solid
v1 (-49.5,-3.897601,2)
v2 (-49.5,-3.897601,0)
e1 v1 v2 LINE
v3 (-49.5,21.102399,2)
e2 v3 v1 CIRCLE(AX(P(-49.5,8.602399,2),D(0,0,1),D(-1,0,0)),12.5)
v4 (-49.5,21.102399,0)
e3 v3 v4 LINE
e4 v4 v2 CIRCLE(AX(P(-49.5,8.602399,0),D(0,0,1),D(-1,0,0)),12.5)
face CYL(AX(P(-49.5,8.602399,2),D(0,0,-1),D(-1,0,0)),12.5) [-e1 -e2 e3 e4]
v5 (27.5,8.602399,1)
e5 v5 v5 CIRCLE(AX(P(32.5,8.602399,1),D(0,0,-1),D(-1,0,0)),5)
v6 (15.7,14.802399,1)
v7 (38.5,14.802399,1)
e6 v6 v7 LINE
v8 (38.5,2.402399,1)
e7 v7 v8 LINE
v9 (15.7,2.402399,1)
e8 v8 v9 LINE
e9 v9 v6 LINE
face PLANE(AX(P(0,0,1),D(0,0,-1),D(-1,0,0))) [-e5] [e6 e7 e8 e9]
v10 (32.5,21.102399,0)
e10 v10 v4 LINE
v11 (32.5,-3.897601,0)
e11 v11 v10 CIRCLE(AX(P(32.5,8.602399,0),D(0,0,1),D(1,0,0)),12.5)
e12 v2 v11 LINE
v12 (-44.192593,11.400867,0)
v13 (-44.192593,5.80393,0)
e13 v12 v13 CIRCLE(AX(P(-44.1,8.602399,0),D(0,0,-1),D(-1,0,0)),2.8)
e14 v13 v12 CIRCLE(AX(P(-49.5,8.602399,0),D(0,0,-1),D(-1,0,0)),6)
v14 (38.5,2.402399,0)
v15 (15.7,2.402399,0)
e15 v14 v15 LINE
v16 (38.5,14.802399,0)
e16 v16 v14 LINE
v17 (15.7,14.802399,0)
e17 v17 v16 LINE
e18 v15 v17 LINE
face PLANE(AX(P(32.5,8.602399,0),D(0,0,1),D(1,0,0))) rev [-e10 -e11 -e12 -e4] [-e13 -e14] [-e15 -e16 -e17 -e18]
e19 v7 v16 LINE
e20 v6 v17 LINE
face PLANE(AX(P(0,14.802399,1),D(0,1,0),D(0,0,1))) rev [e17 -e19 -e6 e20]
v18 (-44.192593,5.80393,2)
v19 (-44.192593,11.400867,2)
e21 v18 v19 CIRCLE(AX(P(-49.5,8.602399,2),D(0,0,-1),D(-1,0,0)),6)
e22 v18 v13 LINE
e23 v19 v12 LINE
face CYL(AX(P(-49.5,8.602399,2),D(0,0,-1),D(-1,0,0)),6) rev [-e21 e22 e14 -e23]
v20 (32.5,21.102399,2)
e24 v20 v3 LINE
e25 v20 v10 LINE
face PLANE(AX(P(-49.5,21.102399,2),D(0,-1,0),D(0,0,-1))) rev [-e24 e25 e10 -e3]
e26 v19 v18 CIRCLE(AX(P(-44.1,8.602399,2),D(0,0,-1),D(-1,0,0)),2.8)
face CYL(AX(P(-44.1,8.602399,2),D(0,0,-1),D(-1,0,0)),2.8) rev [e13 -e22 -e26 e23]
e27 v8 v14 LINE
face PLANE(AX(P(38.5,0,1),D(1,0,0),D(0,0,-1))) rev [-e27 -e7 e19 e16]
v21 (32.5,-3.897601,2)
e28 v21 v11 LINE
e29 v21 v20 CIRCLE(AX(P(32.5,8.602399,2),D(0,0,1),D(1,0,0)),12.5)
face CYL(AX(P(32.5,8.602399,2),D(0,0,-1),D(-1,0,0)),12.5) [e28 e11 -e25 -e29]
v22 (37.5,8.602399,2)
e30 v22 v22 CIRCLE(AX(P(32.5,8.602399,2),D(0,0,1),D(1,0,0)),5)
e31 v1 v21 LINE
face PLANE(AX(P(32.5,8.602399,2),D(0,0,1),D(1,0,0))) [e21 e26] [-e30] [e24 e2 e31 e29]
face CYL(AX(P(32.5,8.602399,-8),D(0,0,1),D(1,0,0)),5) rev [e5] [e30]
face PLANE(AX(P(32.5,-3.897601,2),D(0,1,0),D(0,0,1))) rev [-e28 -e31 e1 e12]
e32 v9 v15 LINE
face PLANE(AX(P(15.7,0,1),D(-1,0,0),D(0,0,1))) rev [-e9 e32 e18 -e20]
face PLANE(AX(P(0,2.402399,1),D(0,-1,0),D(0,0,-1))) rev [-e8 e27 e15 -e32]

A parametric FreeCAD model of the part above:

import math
import FreeCAD as App
import Part
import Sketcher

V = App.Vector

doc = App.newDocument("Part")
body = doc.addObject("PartDesign::Body", "Body")

sketch1 = doc.addObject("Sketcher::SketchObject", "Sketch")
body.addObject(sketch1)
sketch1.AttachmentSupport = (doc.XY_Plane, [""])
sketch1.MapMode = "FlatFace"
sketch1.addGeometry([
    Part.LineSegment(V(-49.5, -3.897601, 0), V(32.5, -3.897601, 0)),
    Part.ArcOfCircle(Part.Circle(V(32.5, 8.602399, 0), V(0, 0, 1), 12.5), math.radians(-90), math.radians(90)),
    Part.LineSegment(V(32.5, 21.102399, 0), V(-49.5, 21.102399, 0)),
    Part.ArcOfCircle(Part.Circle(V(-49.5, 8.602399, 0), V(0, 0, 1), 12.5), math.radians(90), math.radians(270)),
    Part.Circle(V(32.5, 8.602399, 0), V(0, 0, 1), 0.5),
    Part.Circle(V(-49.5, 8.602399, 0), V(0, 0, 1), 0.5),
], False)
sketch1.addConstraint([
    Sketcher.Constraint("Tangent", 0, 2, 1, 1),
    Sketcher.Constraint("Tangent", 1, 2, 2, 1),
    Sketcher.Constraint("Tangent", 2, 2, 3, 1),
    Sketcher.Constraint("Tangent", 3, 2, 0, 1),
    Sketcher.Constraint("Horizontal", 0),
    Sketcher.Constraint("Horizontal", 2),
    Sketcher.Constraint("Coincident", 4, 3, 1, 3),
    Sketcher.Constraint("Coincident", 5, 3, 3, 3),
    Sketcher.Constraint("Equal", 4, 5),
    Sketcher.Constraint("Diameter", 4, 1.0),
    Sketcher.Constraint("Radius", 1, 12.5),
    Sketcher.Constraint("DistanceX", 0, 1, 0, 2, 82.0),
    Sketcher.Constraint("DistanceX", -1, 1, 1, 3, 32.5),
    Sketcher.Constraint("DistanceY", -1, 1, 1, 3, 8.602399),
])
pad1 = doc.addObject("PartDesign::Pad", "Pad")
body.addObject(pad1)
pad1.Profile = sketch1
pad1.Length = 2

sketch2 = doc.addObject("Sketcher::SketchObject", "Sketch001")
body.addObject(sketch2)
sketch2.AttachmentSupport = (doc.XY_Plane, [""])
sketch2.MapMode = "FlatFace"
sketch2.addGeometry([
    Part.ArcOfCircle(Part.Circle(V(-44.1, 8.602399, 0), V(0, 0, 1), 2.8), math.radians(-91.895047), math.radians(91.895047)),
    Part.ArcOfCircle(Part.Circle(V(-49.5, 8.602399, 0), V(0, 0, 1), 6), math.radians(27.801606), math.radians(332.198394)),
], False)
sketch2.addConstraint([
    Sketcher.Constraint("Coincident", 0, 1, 1, 2),
    Sketcher.Constraint("Coincident", 1, 1, 0, 2),
    Sketcher.Constraint("Horizontal", 0, 3, 1, 3),
    Sketcher.Constraint("Radius", 1, 6.0),
    Sketcher.Constraint("Radius", 0, 2.8),
    Sketcher.Constraint("DistanceX", 0, 3, -1, 1, 44.1),
    Sketcher.Constraint("DistanceX", 1, 3, -1, 1, 49.5),
    Sketcher.Constraint("DistanceY", -1, 1, 0, 3, 8.602399),
])
pocket1 = doc.addObject("PartDesign::Pocket", "Pocket")
body.addObject(pocket1)
pocket1.Profile = sketch2
pocket1.Length = 2
pocket1.Reversed = True

sketch3 = doc.addObject("Sketcher::SketchObject", "Sketch002")
body.addObject(sketch3)
sketch3.AttachmentSupport = (doc.XY_Plane, [""])
sketch3.MapMode = "FlatFace"
sketch3.addGeometry([
    Part.LineSegment(V(15.7, 14.802399, 0), V(38.5, 14.802399, 0)),
    Part.LineSegment(V(38.5, 14.802399, 0), V(38.5, 2.402399, 0)),
    Part.LineSegment(V(38.5, 2.402399, 0), V(15.7, 2.402399, 0)),
    Part.LineSegment(V(15.7, 2.402399, 0), V(15.7, 14.802399, 0)),
    Part.ArcOfCircle(Part.Circle(V(32.5, 8.602399, 0), V(0, 0, 1), 0.5), math.radians(0), math.radians(90)),
    Part.ArcOfCircle(Part.Circle(V(32.5, 8.602399, 0), V(0, 0, 1), 0.5), math.radians(90), math.radians(180)),
    Part.ArcOfCircle(Part.Circle(V(32.5, 8.602399, 0), V(0, 0, 1), 0.5), math.radians(180), math.radians(270)),
    Part.ArcOfCircle(Part.Circle(V(32.5, 8.602399, 0), V(0, 0, 1), 0.5), math.radians(-90), math.radians(0)),
], False)
sketch3.addConstraint([
    Sketcher.Constraint("Coincident", 0, 2, 1, 1),
    Sketcher.Constraint("Coincident", 1, 2, 2, 1),
    Sketcher.Constraint("Coincident", 2, 2, 3, 1),
    Sketcher.Constraint("Coincident", 3, 2, 0, 1),
    Sketcher.Constraint("Tangent", 4, 2, 5, 1),
    Sketcher.Constraint("Tangent", 5, 2, 6, 1),
    Sketcher.Constraint("Tangent", 6, 2, 7, 1),
    Sketcher.Constraint("Tangent", 7, 2, 4, 1),
    Sketcher.Constraint("Horizontal", 0),
    Sketcher.Constraint("Vertical", 1),
    Sketcher.Constraint("Horizontal", 2),
    Sketcher.Constraint("Vertical", 3),
    Sketcher.Constraint("Equal", 4, 5),
    Sketcher.Constraint("Horizontal", 7, 3, 5, 2),
    Sketcher.Constraint("Horizontal", 5, 2, 7, 2),
    Sketcher.Constraint("Vertical", 7, 3, 4, 2),
    Sketcher.Constraint("Vertical", 4, 2, 6, 2),
    Sketcher.Constraint("Radius", 4, 0.5),
    Sketcher.Constraint("DistanceX", 0, 1, 0, 2, 22.8),
    Sketcher.Constraint("DistanceY", 1, 2, 1, 1, 12.4),
    Sketcher.Constraint("DistanceX", -1, 1, 5, 2, 32.0),
    Sketcher.Constraint("DistanceX", 4, 3, 0, 2, 6.0),
    Sketcher.Constraint("DistanceY", 4, 3, 0, 2, 6.2),
    Sketcher.Constraint("DistanceY", -1, 1, 4, 3, 8.602399),
])
pocket2 = doc.addObject("PartDesign::Pocket", "Pocket001")
body.addObject(pocket2)
pocket2.Profile = sketch3
pocket2.Length = 1
pocket2.Reversed = True

sketch4 = doc.addObject("Sketcher::SketchObject", "Sketch003")
body.addObject(sketch4)
sketch4.AttachmentSupport = (doc.XY_Plane, [""])
sketch4.MapMode = "FlatFace"
sketch4.AttachmentOffset = App.Placement(V(0, 0, 2), App.Rotation())
sketch4.addGeometry(Part.Circle(V(32.5, 8.602399, 0), V(0, 0, 1), 5), False)
sketch4.addConstraint([
    Sketcher.Constraint("Diameter", 0, 10.0),
    Sketcher.Constraint("DistanceX", -1, 1, 0, 3, 32.5),
    Sketcher.Constraint("DistanceY", -1, 1, 0, 3, 8.602399),
])
pocket3 = doc.addObject("PartDesign::Pocket", "Pocket002")
body.addObject(pocket3)
pocket3.Profile = sketch4
pocket3.Length = 10

doc.recompute()
